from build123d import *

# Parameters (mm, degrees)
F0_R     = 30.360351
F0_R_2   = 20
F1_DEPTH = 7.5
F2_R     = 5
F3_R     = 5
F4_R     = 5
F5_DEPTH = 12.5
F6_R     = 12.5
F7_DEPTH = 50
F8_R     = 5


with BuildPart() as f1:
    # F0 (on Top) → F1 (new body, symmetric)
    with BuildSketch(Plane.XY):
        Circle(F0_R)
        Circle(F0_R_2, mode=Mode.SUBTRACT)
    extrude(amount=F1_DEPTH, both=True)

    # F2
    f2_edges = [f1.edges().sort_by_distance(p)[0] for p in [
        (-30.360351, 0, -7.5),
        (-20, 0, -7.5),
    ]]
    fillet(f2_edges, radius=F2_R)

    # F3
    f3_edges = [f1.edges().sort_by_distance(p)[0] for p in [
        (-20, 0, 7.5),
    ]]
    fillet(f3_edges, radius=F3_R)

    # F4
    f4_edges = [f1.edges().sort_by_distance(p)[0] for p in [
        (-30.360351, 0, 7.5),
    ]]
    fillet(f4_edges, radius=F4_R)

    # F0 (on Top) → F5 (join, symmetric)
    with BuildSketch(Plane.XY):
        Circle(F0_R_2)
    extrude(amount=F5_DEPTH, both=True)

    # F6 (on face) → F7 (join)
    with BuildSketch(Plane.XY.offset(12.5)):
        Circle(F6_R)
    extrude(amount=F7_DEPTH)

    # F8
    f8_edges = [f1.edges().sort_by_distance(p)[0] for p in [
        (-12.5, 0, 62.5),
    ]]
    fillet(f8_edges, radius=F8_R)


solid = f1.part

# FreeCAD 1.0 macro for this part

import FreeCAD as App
import Part
import Sketcher
Q = App.Units.Quantity


def edges_at(feature, points):
    """Names of the edges that pass closest to the given points."""
    edges = feature.Shape.Edges
    near = lambda p: min(range(len(edges)), key=lambda i: edges[i].distToShape(Part.Vertex(*p))[0])
    return sorted({f"Edge{near(p) + 1}" for p in points})

doc = App.newDocument("Part")
body = doc.addObject("PartDesign::Body", "Body")

# Sketch on XY plane
sketch1 = body.newObject("Sketcher::SketchObject", "Sketch")
sketch1.AttachmentSupport = (doc.getObject("XY_Plane"), [""])
sketch1.MapMode = "FlatFace"
sketch1.addGeometry([
    Part.Circle(App.Vector(0, 0, 0), App.Vector(0, 0, 1), 30),
    Part.Circle(App.Vector(0, 0, 0), App.Vector(0, 0, 1), 20),
], False)
sketch1.addConstraint([
    Sketcher.Constraint("Coincident", 0, 3, -1, 1),
    Sketcher.Constraint("Coincident", 1, 3, -1, 1),
    Sketcher.Constraint("Diameter", 1, Q("40 mm")),
    Sketcher.Constraint("Diameter", 0, Q("60.720702 mm")),
])
pad1 = body.newObject("PartDesign::Pad", "Pad")
pad1.Profile = sketch1
pad1.Length = 15
pad1.Midplane = True
doc.recompute()

fillet = body.newObject("PartDesign::Fillet", "Fillet")
fillet.Base = (pad1, edges_at(pad1, [(-30.36, 0, -7.5), (-20, 0, -7.5)]))
fillet.Radius = 5
doc.recompute()

fillet2 = body.newObject("PartDesign::Fillet", "Fillet001")
fillet2.Base = (fillet, edges_at(fillet, [(-20, 0, 7.5)]))
fillet2.Radius = 5
doc.recompute()

fillet3 = body.newObject("PartDesign::Fillet", "Fillet002")
fillet3.Base = (fillet2, edges_at(fillet2, [(-30.36, 0, 7.5)]))
fillet3.Radius = 5

# Sketch on XY plane
sketch2 = body.newObject("Sketcher::SketchObject", "Sketch001")
sketch2.AttachmentSupport = (doc.getObject("XY_Plane"), [""])
sketch2.MapMode = "FlatFace"
sketch2.addGeometry(Part.Circle(App.Vector(0, 0, 0), App.Vector(0, 0, 1), 20), False)
sketch2.addConstraint([
    Sketcher.Constraint("Coincident", 0, 3, -1, 1),
    Sketcher.Constraint("Diameter", 0, Q("40 mm")),
])
pad2 = body.newObject("PartDesign::Pad", "Pad001")
pad2.Profile = sketch2
pad2.Length = 25
pad2.Midplane = True

# Sketch on XY plane
sketch3 = body.newObject("Sketcher::SketchObject", "Sketch002")
sketch3.AttachmentSupport = (doc.getObject("XY_Plane"), [""])
sketch3.MapMode = "FlatFace"
sketch3.AttachmentOffset = App.Placement(App.Vector(0, 0, 12.5), App.Rotation())
sketch3.addGeometry(Part.Circle(App.Vector(0, 0, 0), App.Vector(0, 0, 1), 12), False)
sketch3.addConstraint([
    Sketcher.Constraint("Coincident", 0, 3, -1, 1),
    Sketcher.Constraint("Diameter", 0, Q("25 mm")),
])
pad3 = body.newObject("PartDesign::Pad", "Pad002")
pad3.Profile = sketch3
pad3.Length = 50
doc.recompute()

fillet4 = body.newObject("PartDesign::Fillet", "Fillet003")
fillet4.Base = (pad3, edges_at(pad3, [(-12.5, 0, 62.5)]))
fillet4.Radius = 5

doc.recompute()
